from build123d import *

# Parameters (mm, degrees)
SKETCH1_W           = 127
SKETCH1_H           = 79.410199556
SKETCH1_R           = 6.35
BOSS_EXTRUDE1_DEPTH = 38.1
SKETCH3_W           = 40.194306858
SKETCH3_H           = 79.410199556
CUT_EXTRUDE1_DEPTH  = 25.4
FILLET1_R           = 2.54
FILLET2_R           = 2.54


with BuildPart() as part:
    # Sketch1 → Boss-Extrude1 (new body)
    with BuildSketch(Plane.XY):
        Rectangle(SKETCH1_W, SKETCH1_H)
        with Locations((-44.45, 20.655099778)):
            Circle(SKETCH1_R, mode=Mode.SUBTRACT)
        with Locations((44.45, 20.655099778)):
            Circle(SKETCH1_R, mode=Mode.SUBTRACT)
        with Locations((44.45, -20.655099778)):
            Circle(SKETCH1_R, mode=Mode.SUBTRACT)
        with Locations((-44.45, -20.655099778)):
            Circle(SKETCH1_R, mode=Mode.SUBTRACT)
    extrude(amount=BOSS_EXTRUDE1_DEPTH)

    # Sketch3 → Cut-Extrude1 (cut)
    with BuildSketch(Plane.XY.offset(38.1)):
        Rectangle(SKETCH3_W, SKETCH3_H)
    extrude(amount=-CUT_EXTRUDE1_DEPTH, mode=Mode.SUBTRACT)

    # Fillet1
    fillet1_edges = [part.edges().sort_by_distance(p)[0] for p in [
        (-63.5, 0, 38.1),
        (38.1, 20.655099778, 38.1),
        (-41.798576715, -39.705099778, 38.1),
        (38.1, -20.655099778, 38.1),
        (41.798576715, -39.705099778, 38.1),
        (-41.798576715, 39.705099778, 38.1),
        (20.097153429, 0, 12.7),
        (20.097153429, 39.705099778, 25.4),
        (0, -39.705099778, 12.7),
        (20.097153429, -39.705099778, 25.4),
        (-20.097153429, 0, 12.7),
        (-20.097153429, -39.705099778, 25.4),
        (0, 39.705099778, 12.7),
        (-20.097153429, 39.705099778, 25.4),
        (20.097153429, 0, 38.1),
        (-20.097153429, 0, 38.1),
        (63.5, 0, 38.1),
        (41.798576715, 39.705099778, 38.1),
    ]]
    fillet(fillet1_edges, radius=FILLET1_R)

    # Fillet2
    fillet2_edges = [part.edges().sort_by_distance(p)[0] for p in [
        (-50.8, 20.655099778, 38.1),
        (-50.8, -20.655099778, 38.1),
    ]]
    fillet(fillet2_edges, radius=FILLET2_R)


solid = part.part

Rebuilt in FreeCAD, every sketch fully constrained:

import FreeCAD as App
import Part
import Sketcher

V = App.Vector
Q = App.Units.Quantity


def edges_at(feature, points):
    """Names of the edges that pass closest to the given points."""
    edges = feature.Shape.Edges
    near = lambda p: min(range(len(edges)), key=lambda i: edges[i].distToShape(Part.Vertex(*p))[0])
    return sorted({f"Edge{near(p) + 1}" for p in points})


def add_polygon(sketch, points):
    """Adds a closed chain of lines whose ends are joined by coincident constraints."""
    first, n = sketch.GeometryCount, len(points)
    for a, b in zip(points, points[1:] + points[:1]):
        sketch.addGeometry(Part.LineSegment(App.Vector(*a, 0), App.Vector(*b, 0)), False)
    for i in range(n):
        sketch.addConstraint(Sketcher.Constraint("Coincident", first + i, 2, first + (i + 1) % n, 1))

doc = App.newDocument("Part")
body = doc.addObject("PartDesign::Body", "Body")

sketch1 = body.newObject("Sketcher::SketchObject", "Sketch")
sketch1.AttachmentSupport = (doc.getObject("XY_Plane"), [""])
sketch1.MapMode = "FlatFace"
add_polygon(sketch1, [(-64, 40), (-64, -40), (64, -40), (64, 40)])
sketch1.addGeometry(Part.Circle(V(-44, -21, 0), V(0, 0, 1), 6), False)
sketch1.addGeometry(Part.Circle(V(44, -21, 0), V(0, 0, 1), 6), False)
sketch1.addGeometry(Part.Circle(V(-44, 21, 0), V(0, 0, 1), 6), False)
sketch1.addGeometry(Part.Circle(V(44, 21, 0), V(0, 0, 1), 6), False)
sketch1.addConstraint([
    Sketcher.Constraint("Vertical", 0),
    Sketcher.Constraint("Horizontal", 1),
    Sketcher.Constraint("Vertical", 2),
    Sketcher.Constraint("Horizontal", 3),
    Sketcher.Constraint("Equal", 4, 5),
    Sketcher.Constraint("Equal", 5, 6),
    Sketcher.Constraint("Equal", 6, 7),
    Sketcher.Constraint("Symmetric", 5, 3, 6, 3, -1, 1),
    Sketcher.Constraint("Symmetric", 4, 3, 7, 3, -1, 1),
    Sketcher.Constraint("Symmetric", 0, 2, 2, 2, -1, 1),
    Sketcher.Constraint("Symmetric", 4, 3, 5, 3, -2),
    Sketcher.Constraint("Diameter", 4, Q("0.5 in")),
    Sketcher.Constraint("DistanceX", 1, 1, 1, 2, Q("5 in")),
    Sketcher.Constraint("DistanceX", 4, 3, 5, 3, Q("3.5 in")),
    Sketcher.Constraint("DistanceY", 0, 2, 4, 3, Q("0.75 in")),
    Sketcher.Constraint("DistanceY", 0, 2, 0, 1, Q("79.4102 mm")),
])
pad1 = body.newObject("PartDesign::Pad", "Pad")
pad1.Profile = sketch1
pad1.Length = Q("1.5 in")

sketch2 = body.newObject("Sketcher::SketchObject", "Sketch001")
sketch2.AttachmentSupport = (doc.getObject("XY_Plane"), [""])
sketch2.MapMode = "FlatFace"
sketch2.AttachmentOffset = App.Placement(V(0, 0, 1.5 * 25.4), App.Rotation())
add_polygon(sketch2, [(-20, 40), (-20, -40), (20, -40), (20, 40)])
sketch2.addConstraint([
    Sketcher.Constraint("Vertical", 0),
    Sketcher.Constraint("Horizontal", 1),
    Sketcher.Constraint("Vertical", 2),
    Sketcher.Constraint("Horizontal", 3),
    Sketcher.Constraint("Symmetric", 0, 2, 2, 2, -1, 1),
    Sketcher.Constraint("DistanceY", 0, 2, 0, 1, Q("79.4102 mm")),
    Sketcher.Constraint("DistanceX", 1, 1, 1, 2, Q("40.194307 mm")),
])
pocket1 = body.newObject("PartDesign::Pocket", "Pocket")
pocket1.Profile = sketch2
pocket1.Length = Q("1 in")
doc.recompute()

fillet = body.newObject("PartDesign::Fillet", "Fillet")
fillet.Base = (pocket1, edges_at(pocket1, [
    (-63.5, 0, 38.1),
    (38.1, 20.655, 38.1),
    (-41.799, -39.705, 38.1),
    (38.1, -20.655, 38.1),
    (41.799, -39.705, 38.1),
    (-41.799, 39.705, 38.1),
    (20.097, 0, 12.7),
    (20.097, 39.705, 25.4),
    (0, -39.705, 12.7),
    (20.097, -39.705, 25.4),
    (-20.097, 0, 12.7),
    (-20.097, -39.705, 25.4),
    (0, 39.705, 12.7),
    (-20.097, 39.705, 25.4),
    (20.097, 0, 38.1),
    (-20.097, 0, 38.1),
    (63.5, 0, 38.1),
    (41.799, 39.705, 38.1),
]))
fillet.Radius = Q("0.1 in")
doc.recompute()

fillet2 = body.newObject("PartDesign::Fillet", "Fillet001")
fillet2.Base = (fillet, edges_at(fillet, [(-50.8, 20.655, 38.1), (-50.8, -20.655, 38.1)]))
fillet2.Radius = Q("0.1 in")

doc.recompute()
